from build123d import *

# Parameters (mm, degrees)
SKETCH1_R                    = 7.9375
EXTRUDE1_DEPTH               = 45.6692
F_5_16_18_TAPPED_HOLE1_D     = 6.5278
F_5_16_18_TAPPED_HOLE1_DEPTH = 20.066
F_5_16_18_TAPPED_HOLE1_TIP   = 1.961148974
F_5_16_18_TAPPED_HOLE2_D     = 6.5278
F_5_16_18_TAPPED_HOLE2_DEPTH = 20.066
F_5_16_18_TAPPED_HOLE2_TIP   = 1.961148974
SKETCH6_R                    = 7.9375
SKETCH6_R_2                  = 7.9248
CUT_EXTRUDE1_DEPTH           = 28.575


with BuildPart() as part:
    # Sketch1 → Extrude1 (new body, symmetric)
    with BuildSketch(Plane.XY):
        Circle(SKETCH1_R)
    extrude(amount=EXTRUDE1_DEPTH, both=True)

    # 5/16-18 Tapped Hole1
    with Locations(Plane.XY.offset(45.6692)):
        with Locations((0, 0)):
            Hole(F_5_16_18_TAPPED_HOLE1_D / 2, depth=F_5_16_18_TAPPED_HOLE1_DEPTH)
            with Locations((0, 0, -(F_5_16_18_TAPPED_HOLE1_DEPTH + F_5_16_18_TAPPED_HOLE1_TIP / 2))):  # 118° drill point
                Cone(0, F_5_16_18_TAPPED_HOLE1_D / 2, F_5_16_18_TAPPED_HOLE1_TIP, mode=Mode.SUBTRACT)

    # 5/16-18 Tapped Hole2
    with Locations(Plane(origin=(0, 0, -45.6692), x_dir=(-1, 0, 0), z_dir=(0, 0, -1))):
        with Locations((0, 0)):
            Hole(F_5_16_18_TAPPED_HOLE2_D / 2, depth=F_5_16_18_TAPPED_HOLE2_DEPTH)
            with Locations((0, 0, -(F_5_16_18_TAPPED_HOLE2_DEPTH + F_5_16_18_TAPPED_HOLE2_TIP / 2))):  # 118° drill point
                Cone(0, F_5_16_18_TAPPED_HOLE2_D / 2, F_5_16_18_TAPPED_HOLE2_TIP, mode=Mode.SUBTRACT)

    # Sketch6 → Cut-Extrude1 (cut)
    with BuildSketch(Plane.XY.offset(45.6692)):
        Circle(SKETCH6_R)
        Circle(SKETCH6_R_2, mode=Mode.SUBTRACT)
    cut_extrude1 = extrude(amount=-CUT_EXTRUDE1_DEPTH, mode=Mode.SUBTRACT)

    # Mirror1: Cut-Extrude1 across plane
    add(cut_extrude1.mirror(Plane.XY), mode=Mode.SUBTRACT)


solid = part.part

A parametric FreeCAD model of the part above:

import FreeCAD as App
import Part
import Sketcher

V = App.Vector
Q = App.Units.Quantity

doc = App.newDocument("Part")
body = doc.addObject("PartDesign::Body", "Body")

sketch1 = doc.addObject("Sketcher::SketchObject", "Sketch")
body.addObject(sketch1)
sketch1.AttachmentSupport = (doc.XY_Plane, [""])
sketch1.MapMode = "FlatFace"
sketch1.addGeometry(Part.Circle(V(0, 0, 0), V(0, 0, 1), 8), False)
sketch1.addConstraint([
    Sketcher.Constraint("Coincident", 0, 3, -1, 1),
    Sketcher.Constraint("Diameter", 0, Q("0.625 in")),
])
pad1 = doc.addObject("PartDesign::Pad", "Pad")
body.addObject(pad1)
pad1.Profile = sketch1
pad1.Length = Q("3.596 in")
pad1.Midplane = True

sketch2 = doc.addObject("Sketcher::SketchObject", "Sketch001")
body.addObject(sketch2)
sketch2.AttachmentSupport = (doc.XY_Plane, [""])
sketch2.MapMode = "FlatFace"
sketch2.AttachmentOffset = App.Placement(V(0, 0, 1.798 * 25.4), App.Rotation())
sketch2.addGeometry(Part.Circle(V(0, 0, 0), V(0, 0, 1), 3.3), False)
sketch2.addConstraint([
    Sketcher.Constraint("Coincident", 0, 3, -1, 1),
    Sketcher.Constraint("Diameter", 0, Q("0.257 in")),
])
doc.recompute()
hole = doc.addObject("PartDesign::Hole", "Hole")
body.addObject(hole)
hole.Profile = sketch2
hole.ThreadType = "None"
hole.Diameter = Q("0.257 in")
hole.DepthType = "Dimension"
hole.Depth = Q("0.79 in")
hole.DrillPoint = "Angled"
hole.DrillPointAngle = 118

sketch3 = doc.addObject("Sketcher::SketchObject", "Sketch002")
body.addObject(sketch3)
sketch3.AttachmentSupport = (doc.XY_Plane, [""])
sketch3.MapMode = "FlatFace"
sketch3.AttachmentOffset = App.Placement(V(0, 0, -1.798 * 25.4), App.Rotation())
sketch3.addGeometry(Part.Circle(V(0, 0, 0), V(0, 0, 1), 3.3), False)
sketch3.addConstraint([
    Sketcher.Constraint("Coincident", 0, 3, -1, 1),
    Sketcher.Constraint("Diameter", 0, Q("0.257 in")),
])
doc.recompute()
hole2 = doc.addObject("PartDesign::Hole", "Hole001")
body.addObject(hole2)
hole2.Profile = sketch3
hole2.ThreadType = "None"
hole2.Diameter = Q("0.257 in")
hole2.DepthType = "Dimension"
hole2.Depth = Q("0.79 in")
hole2.DrillPoint = "Angled"
hole2.DrillPointAngle = 118
hole2.Reversed = True

sketch4 = doc.addObject("Sketcher::SketchObject", "Sketch003")
body.addObject(sketch4)
sketch4.AttachmentSupport = (doc.XY_Plane, [""])
sketch4.MapMode = "FlatFace"
sketch4.AttachmentOffset = App.Placement(V(0, 0, 1.798 * 25.4), App.Rotation())
sketch4.addGeometry([
    Part.Circle(V(0, 0, 0), V(0, 0, 1), 8),
    Part.Circle(V(0, 0, 0), V(0, 0, 1), 8),
], False)
sketch4.addConstraint([
    Sketcher.Constraint("Coincident", 0, 3, -1, 1),
    Sketcher.Constraint("Coincident", 1, 3, -1, 1),
    Sketcher.Constraint("Diameter", 0, Q("0.625 in")),
    Sketcher.Constraint("Diameter", 1, Q("0.624 in")),
])
pocket1 = doc.addObject("PartDesign::Pocket", "Pocket")
body.addObject(pocket1)
pocket1.Profile = sketch4
pocket1.Length = Q("1.125 in")
doc.recompute()

mirrored = doc.addObject("PartDesign::Mirrored", "Mirrored")
body.addObject(mirrored)
mirrored.Originals = [pocket1]
mirrored.MirrorPlane = (doc.XY_Plane, [""])
body.Tip = mirrored

doc.recompute()
